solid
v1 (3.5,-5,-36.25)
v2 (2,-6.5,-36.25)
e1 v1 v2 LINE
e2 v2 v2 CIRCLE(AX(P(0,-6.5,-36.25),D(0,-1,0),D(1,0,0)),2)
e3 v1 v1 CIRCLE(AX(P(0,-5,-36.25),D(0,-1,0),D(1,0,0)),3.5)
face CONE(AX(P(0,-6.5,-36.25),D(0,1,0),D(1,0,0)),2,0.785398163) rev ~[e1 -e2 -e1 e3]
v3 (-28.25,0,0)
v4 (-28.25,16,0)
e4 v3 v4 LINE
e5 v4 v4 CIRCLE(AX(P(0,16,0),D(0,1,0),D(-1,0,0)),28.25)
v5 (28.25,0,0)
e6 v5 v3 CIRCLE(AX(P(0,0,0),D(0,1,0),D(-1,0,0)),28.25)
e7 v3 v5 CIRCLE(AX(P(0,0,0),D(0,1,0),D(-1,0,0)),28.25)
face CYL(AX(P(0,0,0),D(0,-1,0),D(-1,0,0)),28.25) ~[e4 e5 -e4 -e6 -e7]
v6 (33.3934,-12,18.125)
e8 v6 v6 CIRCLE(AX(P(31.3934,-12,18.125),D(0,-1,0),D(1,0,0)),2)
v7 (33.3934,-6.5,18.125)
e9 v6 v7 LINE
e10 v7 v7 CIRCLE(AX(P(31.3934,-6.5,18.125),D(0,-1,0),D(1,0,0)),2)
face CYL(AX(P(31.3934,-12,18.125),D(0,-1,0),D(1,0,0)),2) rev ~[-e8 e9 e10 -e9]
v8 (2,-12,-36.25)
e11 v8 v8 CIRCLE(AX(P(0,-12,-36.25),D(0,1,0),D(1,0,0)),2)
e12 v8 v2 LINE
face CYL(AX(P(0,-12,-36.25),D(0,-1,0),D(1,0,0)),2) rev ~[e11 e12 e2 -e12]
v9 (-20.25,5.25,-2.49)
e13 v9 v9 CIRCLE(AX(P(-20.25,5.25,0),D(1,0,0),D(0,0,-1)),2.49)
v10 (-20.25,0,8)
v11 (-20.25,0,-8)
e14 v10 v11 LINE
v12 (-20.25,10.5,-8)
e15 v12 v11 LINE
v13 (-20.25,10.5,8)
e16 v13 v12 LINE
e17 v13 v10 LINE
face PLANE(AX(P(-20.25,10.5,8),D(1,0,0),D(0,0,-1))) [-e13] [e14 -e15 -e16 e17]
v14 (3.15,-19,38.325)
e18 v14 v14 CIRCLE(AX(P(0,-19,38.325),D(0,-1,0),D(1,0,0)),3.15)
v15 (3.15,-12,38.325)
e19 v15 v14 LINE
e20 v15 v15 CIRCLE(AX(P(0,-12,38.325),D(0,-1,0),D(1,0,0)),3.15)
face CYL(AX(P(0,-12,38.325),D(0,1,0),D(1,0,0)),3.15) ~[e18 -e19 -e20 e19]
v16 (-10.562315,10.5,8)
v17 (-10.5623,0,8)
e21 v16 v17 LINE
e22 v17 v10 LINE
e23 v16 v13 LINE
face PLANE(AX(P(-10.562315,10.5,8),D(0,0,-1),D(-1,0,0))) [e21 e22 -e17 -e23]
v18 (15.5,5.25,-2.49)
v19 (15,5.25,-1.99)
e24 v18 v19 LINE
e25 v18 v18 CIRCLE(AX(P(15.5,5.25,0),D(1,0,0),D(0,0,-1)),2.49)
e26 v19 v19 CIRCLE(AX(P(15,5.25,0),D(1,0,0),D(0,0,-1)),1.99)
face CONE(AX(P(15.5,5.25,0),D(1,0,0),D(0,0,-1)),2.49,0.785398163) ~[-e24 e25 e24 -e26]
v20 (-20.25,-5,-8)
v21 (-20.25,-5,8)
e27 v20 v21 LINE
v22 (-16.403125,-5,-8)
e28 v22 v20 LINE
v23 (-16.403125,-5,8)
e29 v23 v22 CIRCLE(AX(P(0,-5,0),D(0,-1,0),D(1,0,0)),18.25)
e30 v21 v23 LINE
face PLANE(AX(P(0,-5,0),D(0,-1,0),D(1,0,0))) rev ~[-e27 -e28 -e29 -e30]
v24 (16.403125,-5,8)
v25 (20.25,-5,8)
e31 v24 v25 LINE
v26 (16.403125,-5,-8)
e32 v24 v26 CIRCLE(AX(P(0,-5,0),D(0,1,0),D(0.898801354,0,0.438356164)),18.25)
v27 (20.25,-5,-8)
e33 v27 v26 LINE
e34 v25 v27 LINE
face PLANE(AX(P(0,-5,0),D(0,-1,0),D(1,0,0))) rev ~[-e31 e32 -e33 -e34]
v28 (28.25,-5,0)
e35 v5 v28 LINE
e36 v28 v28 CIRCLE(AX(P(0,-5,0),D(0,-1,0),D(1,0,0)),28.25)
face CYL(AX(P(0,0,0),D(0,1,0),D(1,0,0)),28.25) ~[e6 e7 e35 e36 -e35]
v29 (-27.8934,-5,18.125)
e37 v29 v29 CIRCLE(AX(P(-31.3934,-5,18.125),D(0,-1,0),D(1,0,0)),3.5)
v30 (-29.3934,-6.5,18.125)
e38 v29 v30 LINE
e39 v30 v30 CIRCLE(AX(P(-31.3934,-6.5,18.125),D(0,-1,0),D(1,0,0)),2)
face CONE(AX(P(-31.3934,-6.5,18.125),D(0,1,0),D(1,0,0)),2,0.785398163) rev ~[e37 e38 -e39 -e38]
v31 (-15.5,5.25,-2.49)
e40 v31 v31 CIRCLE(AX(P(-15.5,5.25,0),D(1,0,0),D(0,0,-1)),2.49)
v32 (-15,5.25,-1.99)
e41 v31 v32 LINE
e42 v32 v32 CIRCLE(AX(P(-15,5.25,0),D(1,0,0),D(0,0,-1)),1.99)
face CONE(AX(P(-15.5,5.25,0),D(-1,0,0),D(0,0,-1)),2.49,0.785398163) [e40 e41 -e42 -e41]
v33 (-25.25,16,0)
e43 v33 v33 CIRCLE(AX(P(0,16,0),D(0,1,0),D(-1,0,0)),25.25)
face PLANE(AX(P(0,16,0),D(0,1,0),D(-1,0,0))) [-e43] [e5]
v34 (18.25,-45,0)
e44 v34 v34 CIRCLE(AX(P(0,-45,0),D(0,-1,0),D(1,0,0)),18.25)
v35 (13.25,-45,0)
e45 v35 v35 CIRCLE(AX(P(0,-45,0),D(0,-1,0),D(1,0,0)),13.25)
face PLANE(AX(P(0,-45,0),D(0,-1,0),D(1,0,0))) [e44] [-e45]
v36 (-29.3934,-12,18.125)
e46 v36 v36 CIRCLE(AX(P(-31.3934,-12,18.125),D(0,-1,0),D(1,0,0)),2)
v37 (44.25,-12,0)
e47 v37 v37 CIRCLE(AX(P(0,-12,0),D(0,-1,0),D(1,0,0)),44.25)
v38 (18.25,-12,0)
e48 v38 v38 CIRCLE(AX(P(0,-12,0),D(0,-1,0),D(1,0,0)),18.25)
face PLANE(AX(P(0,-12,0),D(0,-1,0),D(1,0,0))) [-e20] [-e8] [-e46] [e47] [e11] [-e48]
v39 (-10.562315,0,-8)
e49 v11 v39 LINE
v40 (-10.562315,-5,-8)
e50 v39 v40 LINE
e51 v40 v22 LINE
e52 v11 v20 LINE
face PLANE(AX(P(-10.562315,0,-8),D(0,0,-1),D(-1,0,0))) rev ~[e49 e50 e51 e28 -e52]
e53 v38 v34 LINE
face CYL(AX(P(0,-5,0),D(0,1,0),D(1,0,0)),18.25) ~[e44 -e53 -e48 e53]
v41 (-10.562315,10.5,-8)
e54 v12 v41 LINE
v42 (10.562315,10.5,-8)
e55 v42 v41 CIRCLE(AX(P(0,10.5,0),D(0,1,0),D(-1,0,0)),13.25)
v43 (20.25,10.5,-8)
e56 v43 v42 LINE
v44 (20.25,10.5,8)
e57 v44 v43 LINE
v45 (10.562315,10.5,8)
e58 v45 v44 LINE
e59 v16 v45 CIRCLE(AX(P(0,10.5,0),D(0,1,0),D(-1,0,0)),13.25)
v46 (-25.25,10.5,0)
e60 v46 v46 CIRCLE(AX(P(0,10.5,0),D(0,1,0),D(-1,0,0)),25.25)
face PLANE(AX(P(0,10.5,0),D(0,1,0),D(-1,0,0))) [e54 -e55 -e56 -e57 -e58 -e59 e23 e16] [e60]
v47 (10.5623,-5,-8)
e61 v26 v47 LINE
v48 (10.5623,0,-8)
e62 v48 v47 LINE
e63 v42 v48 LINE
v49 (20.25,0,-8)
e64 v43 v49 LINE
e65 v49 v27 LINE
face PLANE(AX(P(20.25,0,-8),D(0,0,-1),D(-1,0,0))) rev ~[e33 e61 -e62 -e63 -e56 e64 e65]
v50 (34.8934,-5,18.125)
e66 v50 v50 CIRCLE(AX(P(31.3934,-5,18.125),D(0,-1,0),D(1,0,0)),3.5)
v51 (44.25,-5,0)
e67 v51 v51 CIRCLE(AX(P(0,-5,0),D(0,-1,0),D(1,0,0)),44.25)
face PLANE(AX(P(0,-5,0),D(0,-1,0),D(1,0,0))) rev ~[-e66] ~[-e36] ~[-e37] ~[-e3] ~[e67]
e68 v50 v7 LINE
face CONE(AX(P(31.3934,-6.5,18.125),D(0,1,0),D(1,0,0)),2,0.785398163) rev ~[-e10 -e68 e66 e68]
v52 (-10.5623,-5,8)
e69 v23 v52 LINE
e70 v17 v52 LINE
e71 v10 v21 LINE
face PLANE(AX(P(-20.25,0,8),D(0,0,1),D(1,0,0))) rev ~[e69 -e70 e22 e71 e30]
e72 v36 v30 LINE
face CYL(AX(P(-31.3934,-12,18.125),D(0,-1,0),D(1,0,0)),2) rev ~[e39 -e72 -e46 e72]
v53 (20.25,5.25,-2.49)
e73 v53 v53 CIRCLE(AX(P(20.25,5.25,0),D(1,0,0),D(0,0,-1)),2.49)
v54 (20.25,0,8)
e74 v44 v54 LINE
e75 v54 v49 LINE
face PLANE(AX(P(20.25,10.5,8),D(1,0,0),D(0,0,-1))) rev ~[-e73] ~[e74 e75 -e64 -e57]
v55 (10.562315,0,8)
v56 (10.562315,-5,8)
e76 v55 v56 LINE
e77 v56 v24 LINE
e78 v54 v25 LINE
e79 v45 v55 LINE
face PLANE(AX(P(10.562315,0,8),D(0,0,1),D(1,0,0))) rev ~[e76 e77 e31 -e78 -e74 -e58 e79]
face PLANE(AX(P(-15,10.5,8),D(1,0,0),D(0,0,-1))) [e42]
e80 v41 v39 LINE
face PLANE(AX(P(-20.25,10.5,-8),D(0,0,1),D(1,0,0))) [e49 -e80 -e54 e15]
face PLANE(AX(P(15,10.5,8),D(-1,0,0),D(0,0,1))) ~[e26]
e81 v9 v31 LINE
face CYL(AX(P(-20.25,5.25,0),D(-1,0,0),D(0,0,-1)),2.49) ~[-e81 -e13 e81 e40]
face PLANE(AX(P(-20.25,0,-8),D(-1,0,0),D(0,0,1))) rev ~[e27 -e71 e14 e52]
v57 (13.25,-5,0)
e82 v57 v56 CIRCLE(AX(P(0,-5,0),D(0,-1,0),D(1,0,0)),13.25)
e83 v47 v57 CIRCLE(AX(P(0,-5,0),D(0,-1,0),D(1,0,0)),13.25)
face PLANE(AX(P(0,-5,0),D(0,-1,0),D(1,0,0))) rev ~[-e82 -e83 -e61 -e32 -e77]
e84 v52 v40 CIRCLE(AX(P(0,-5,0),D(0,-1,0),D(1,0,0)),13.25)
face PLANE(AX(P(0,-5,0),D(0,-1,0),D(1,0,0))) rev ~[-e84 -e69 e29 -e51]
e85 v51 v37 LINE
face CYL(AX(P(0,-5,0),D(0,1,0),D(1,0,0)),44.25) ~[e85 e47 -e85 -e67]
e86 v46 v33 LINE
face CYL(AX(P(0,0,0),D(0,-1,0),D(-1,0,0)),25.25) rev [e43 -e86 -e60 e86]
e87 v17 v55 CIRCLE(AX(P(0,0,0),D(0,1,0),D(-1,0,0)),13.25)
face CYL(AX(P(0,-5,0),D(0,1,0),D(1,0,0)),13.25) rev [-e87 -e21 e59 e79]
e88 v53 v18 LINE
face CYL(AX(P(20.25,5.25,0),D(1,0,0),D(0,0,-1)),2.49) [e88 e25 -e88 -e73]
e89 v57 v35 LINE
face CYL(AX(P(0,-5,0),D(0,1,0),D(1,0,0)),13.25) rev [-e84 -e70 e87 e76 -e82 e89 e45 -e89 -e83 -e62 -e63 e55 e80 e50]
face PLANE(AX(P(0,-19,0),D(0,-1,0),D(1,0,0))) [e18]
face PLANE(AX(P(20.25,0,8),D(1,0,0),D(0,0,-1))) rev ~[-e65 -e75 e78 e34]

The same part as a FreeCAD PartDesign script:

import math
import FreeCAD as App
import Part
import Sketcher

V = App.Vector
Q = App.Units.Quantity


def edges_at(feature, points):
    """Names of the edges that pass closest to the given points."""
    edges = feature.Shape.Edges
    near = lambda p: min(range(len(edges)), key=lambda i: edges[i].distToShape(Part.Vertex(*p))[0])
    return sorted({f"Edge{near(p) + 1}" for p in points})

doc = App.newDocument("Part")
body = doc.addObject("PartDesign::Body", "Body")

# Sketch on XZ plane
sketch1 = body.newObject("Sketcher::SketchObject", "Sketch")
sketch1.AttachmentSupport = (doc.getObject("XZ_Plane"), [""])
sketch1.MapMode = "FlatFace"
sketch1.addGeometry(Part.Circle(V(0, 0, 0), V(0, 0, 1), 28.25), False)
sketch1.addGeometry(Part.Circle(V(0, 0, 0), V(0, 0, 1), 25.25), False)
sketch1.addConstraint(Sketcher.Constraint("Coincident", 0, 3, -1, 1))
sketch1.addConstraint(Sketcher.Constraint("Coincident", 1, 3, -1, 1))
sketch1.addConstraint(Sketcher.Constraint("Diameter", 0, Q("56.5 mm")))
sketch1.addConstraint(Sketcher.Constraint("Diameter", 1, Q("50.5 mm")))
pad1 = body.newObject("PartDesign::Pad", "Pad")
pad1.Profile = sketch1
pad1.Length = 16
pad1.Reversed = True

# Sketch on XZ plane
sketch2 = body.newObject("Sketcher::SketchObject", "Sketch001")
sketch2.AttachmentSupport = (doc.getObject("XZ_Plane"), [""])
sketch2.MapMode = "FlatFace"
sketch2.addGeometry(Part.Circle(V(0, 0, 0), V(0, 0, 1), 25.25), False)
sketch2.addGeometry(Part.Circle(V(0, 0, 0), V(0, 0, 1), 13.25), False)
sketch2.addConstraint(Sketcher.Constraint("Coincident", 0, 3, -1, 1))
sketch2.addConstraint(Sketcher.Constraint("Coincident", 1, 3, -1, 1))
sketch2.addConstraint(Sketcher.Constraint("Diameter", 1, Q("26.5 mm")))
sketch2.addConstraint(Sketcher.Constraint("Diameter", 0, Q("50.5 mm")))
pad2 = body.newObject("PartDesign::Pad", "Pad001")
pad2.Profile = sketch2
pad2.Length = 10.5
pad2.Reversed = True

# Sketch on XZ plane
sketch3 = body.newObject("Sketcher::SketchObject", "Sketch002")
sketch3.AttachmentSupport = (doc.getObject("XZ_Plane"), [""])
sketch3.MapMode = "FlatFace"
sketch3.AttachmentOffset = App.Placement(V(0, 0, -10.5), App.Rotation())
sketch3.addGeometry(Part.ArcOfCircle(Part.Circle(V(0, 0, 0), V(0, 0, 1), 13.25), math.radians(-37.140642), math.radians(37.140642)), False)
sketch3.addGeometry(Part.LineSegment(V(10.562315, 8, 0), V(20.25, 8, 0)), False)
sketch3.addGeometry(Part.LineSegment(V(20.25, 8, 0), V(20.25, -8, 0)), False)
sketch3.addGeometry(Part.LineSegment(V(20.25, -8, 0), V(10.562315, -8, 0)), False)
sketch3.addGeometry(Part.LineSegment(V(-20.25, 8, 0), V(-10.562315, 8, 0)), False)
sketch3.addGeometry(Part.ArcOfCircle(Part.Circle(V(0, 0, 0), V(0, 0, 1), 13.25), math.radians(142.859358), math.radians(217.140642)), False)
sketch3.addGeometry(Part.LineSegment(V(-10.562315, -8, 0), V(-20.25, -8, 0)), False)
sketch3.addGeometry(Part.LineSegment(V(-20.25, -8, 0), V(-20.25, 8, 0)), False)
sketch3.addConstraint(Sketcher.Constraint("Coincident", 0, 2, 1, 1))
sketch3.addConstraint(Sketcher.Constraint("Coincident", 1, 2, 2, 1))
sketch3.addConstraint(Sketcher.Constraint("Coincident", 2, 2, 3, 1))
sketch3.addConstraint(Sketcher.Constraint("Coincident", 3, 2, 0, 1))
sketch3.addConstraint(Sketcher.Constraint("Coincident", 4, 2, 5, 1))
sketch3.addConstraint(Sketcher.Constraint("Coincident", 5, 2, 6, 1))
sketch3.addConstraint(Sketcher.Constraint("Coincident", 6, 2, 7, 1))
sketch3.addConstraint(Sketcher.Constraint("Coincident", 7, 2, 4, 1))
sketch3.addConstraint(Sketcher.Constraint("Horizontal", 1))
sketch3.addConstraint(Sketcher.Constraint("Vertical", 2))
sketch3.addConstraint(Sketcher.Constraint("Horizontal", 3))
sketch3.addConstraint(Sketcher.Constraint("Horizontal", 4))
sketch3.addConstraint(Sketcher.Constraint("Horizontal", 6))
sketch3.addConstraint(Sketcher.Constraint("Vertical", 7))
sketch3.addConstraint(Sketcher.Constraint("Coincident", 0, 3, -1, 1))
sketch3.addConstraint(Sketcher.Constraint("Coincident", 5, 3, -1, 1))
sketch3.addConstraint(Sketcher.Constraint("Equal", 0, 5))
sketch3.addConstraint(Sketcher.Constraint("Symmetric", 1, 2, 6, 2, -1, 1))
sketch3.addConstraint(Sketcher.Constraint("Horizontal", 1, 2, 4, 2))
sketch3.addConstraint(Sketcher.Constraint("Horizontal", 3, 2, 5, 2))
sketch3.addConstraint(Sketcher.Constraint("DistanceY", 2, 2, 2, 1, Q("16 mm")))
sketch3.addConstraint(Sketcher.Constraint("DistanceX", -1, 1, 1, 2, Q("20.25 mm")))
sketch3.addConstraint(Sketcher.Constraint("Radius", 0, Q("13.25 mm")))
pocket1 = body.newObject("PartDesign::Pocket", "Pocket")
pocket1.Profile = sketch3
pocket1.Length = 10.5
pocket1.Reversed = True

# Sketch on YZ plane
sketch4 = body.newObject("Sketcher::SketchObject", "Sketch003")
sketch4.AttachmentSupport = (doc.getObject("YZ_Plane"), [""])
sketch4.MapMode = "FlatFace"
sketch4.AttachmentOffset = App.Placement(V(0, 0, -20.25), App.Rotation())
sketch4.addGeometry(Part.Circle(V(5.25, 0, 0), V(0, 0, 1), 2.49), False)
sketch4.addConstraint(Sketcher.Constraint("PointOnObject", 0, 3, -1))
sketch4.addConstraint(Sketcher.Constraint("Diameter", 0, Q("4.98 mm")))
sketch4.addConstraint(Sketcher.Constraint("DistanceX", -1, 1, 0, 3, Q("5.25 mm")))
pad3 = body.newObject("PartDesign::Pad", "Pad002")
pad3.Profile = sketch4
pad3.Length = 5.25
doc.recompute()

chamfer = body.newObject("PartDesign::Chamfer", "Chamfer")
chamfer.Base = (pad3, edges_at(pad3, [(-15, 5.25, 2.49)]))
chamfer.Size = 0.5
doc.recompute()

mirrored = body.newObject("PartDesign::Mirrored", "Mirrored")
mirrored.Originals = [pad3, chamfer]
mirrored.MirrorPlane = (doc.getObject("YZ_Plane"), [""])
body.Tip = mirrored

# Sketch on XZ plane
sketch5 = body.newObject("Sketcher::SketchObject", "Sketch004")
sketch5.AttachmentSupport = (doc.getObject("XZ_Plane"), [""])
sketch5.MapMode = "FlatFace"
sketch5.addGeometry(Part.Circle(V(0, 0, 0), V(0, 0, 1), 28.25), False)
sketch5.addGeometry(Part.LineSegment(V(20.25, 8, 0), V(20.25, -8, 0)), False)
sketch5.addGeometry(Part.LineSegment(V(20.25, -8, 0), V(10.5623, -8, 0)), False)
sketch5.addGeometry(Part.ArcOfCircle(Part.Circle(V(0, 0, 0), V(0, 0, 1), 13.25), math.radians(-142.859358), math.radians(-37.140681)), False)
sketch5.addGeometry(Part.LineSegment(V(-10.562315, -8, 0), V(-20.25, -8, 0)), False)
sketch5.addGeometry(Part.LineSegment(V(-20.25, -8, 0), V(-20.25, 8, 0)), False)
sketch5.addGeometry(Part.LineSegment(V(-20.25, 8, 0), V(-10.5623, 8, 0)), False)
sketch5.addGeometry(Part.ArcOfCircle(Part.Circle(V(0, 0, 0), V(0, 0, 1), 13.25), math.radians(37.140642), math.radians(142.859319)), False)
sketch5.addGeometry(Part.LineSegment(V(10.562315, 8, 0), V(20.25, 8, 0)), False)
sketch5.addConstraint(Sketcher.Constraint("Coincident", 1, 2, 2, 1))
sketch5.addConstraint(Sketcher.Constraint("Coincident", 2, 2, 3, 2))
sketch5.addConstraint(Sketcher.Constraint("Coincident", 3, 1, 4, 1))
sketch5.addConstraint(Sketcher.Constraint("Coincident", 4, 2, 5, 1))
sketch5.addConstraint(Sketcher.Constraint("Coincident", 5, 2, 6, 1))
sketch5.addConstraint(Sketcher.Constraint("Coincident", 6, 2, 7, 2))
sketch5.addConstraint(Sketcher.Constraint("Coincident", 7, 1, 8, 1))
sketch5.addConstraint(Sketcher.Constraint("Coincident", 8, 2, 1, 1))
sketch5.addConstraint(Sketcher.Constraint("Vertical", 1))
sketch5.addConstraint(Sketcher.Constraint("Horizontal", 2))
sketch5.addConstraint(Sketcher.Constraint("Horizontal", 4))
sketch5.addConstraint(Sketcher.Constraint("Vertical", 5))
sketch5.addConstraint(Sketcher.Constraint("Horizontal", 6))
sketch5.addConstraint(Sketcher.Constraint("Horizontal", 8))
sketch5.addConstraint(Sketcher.Constraint("Coincident", 0, 3, -1, 1))
sketch5.addConstraint(Sketcher.Constraint("Coincident", 3, 3, -1, 1))
sketch5.addConstraint(Sketcher.Constraint("Coincident", 7, 3, -1, 1))
sketch5.addConstraint(Sketcher.Constraint("Equal", 3, 7))
sketch5.addConstraint(Sketcher.Constraint("Symmetric", 1, 2, 5, 2, -1, 1))
sketch5.addConstraint(Sketcher.Constraint("Horizontal", 2, 2, 3, 1))
sketch5.addConstraint(Sketcher.Constraint("Horizontal", 6, 2, 7, 1))
sketch5.addConstraint(Sketcher.Constraint("Diameter", 0, Q("56.5 mm")))
sketch5.addConstraint(Sketcher.Constraint("DistanceY", 1, 2, 1, 1, Q("16 mm")))
sketch5.addConstraint(Sketcher.Constraint("Radius", 3, Q("13.25 mm")))
sketch5.addConstraint(Sketcher.Constraint("DistanceX", -1, 1, 1, 2, Q("20.25 mm")))
pad4 = body.newObject("PartDesign::Pad", "Pad003")
pad4.Profile = sketch5
pad4.Length = 5

# Sketch on XZ plane
sketch6 = body.newObject("Sketcher::SketchObject", "Sketch005")
sketch6.AttachmentSupport = (doc.getObject("XZ_Plane"), [""])
sketch6.MapMode = "FlatFace"
sketch6.AttachmentOffset = App.Placement(V(0, 0, 5), App.Rotation())
sketch6.addGeometry(Part.Circle(V(0, 0, 0), V(0, 0, 1), 18.25), False)
sketch6.addGeometry(Part.Circle(V(0, 0, 0), V(0, 0, 1), 13.25), False)
sketch6.addConstraint(Sketcher.Constraint("Coincident", 0, 3, -1, 1))
sketch6.addConstraint(Sketcher.Constraint("Coincident", 1, 3, -1, 1))
sketch6.addConstraint(Sketcher.Constraint("Diameter", 0, Q("36.5 mm")))
sketch6.addConstraint(Sketcher.Constraint("Diameter", 1, Q("26.5 mm")))
pad5 = body.newObject("PartDesign::Pad", "Pad004")
pad5.Profile = sketch6
pad5.Length = 40

# Sketch on XZ plane
sketch7 = body.newObject("Sketcher::SketchObject", "Sketch006")
sketch7.AttachmentSupport = (doc.getObject("XZ_Plane"), [""])
sketch7.MapMode = "FlatFace"
sketch7.AttachmentOffset = App.Placement(V(0, 0, 5), App.Rotation())
sketch7.addGeometry(Part.Circle(V(0, 0, 0), V(0, 0, 1), 44.25), False)
sketch7.addGeometry(Part.Circle(V(0, 0, 0), V(0, 0, 1), 18.25), False)
sketch7.addConstraint(Sketcher.Constraint("Coincident", 0, 3, -1, 1))
sketch7.addConstraint(Sketcher.Constraint("Coincident", 1, 3, -1, 1))
sketch7.addConstraint(Sketcher.Constraint("Diameter", 0, Q("88.5 mm")))
sketch7.addConstraint(Sketcher.Constraint("Diameter", 1, Q("36.5 mm")))
pad6 = body.newObject("PartDesign::Pad", "Pad005")
pad6.Profile = sketch7
pad6.Length = 7

# Sketch on XZ plane
sketch8 = body.newObject("Sketcher::SketchObject", "Sketch007")
sketch8.AttachmentSupport = (doc.getObject("XZ_Plane"), [""])
sketch8.MapMode = "FlatFace"
sketch8.AttachmentOffset = App.Placement(V(0, 0, 12), App.Rotation())
sketch8.addGeometry(Part.Circle(V(0, 38.325, 0), V(0, 0, 1), 3.15), False)
sketch8.addConstraint(Sketcher.Constraint("PointOnObject", 0, 3, -2))
sketch8.addConstraint(Sketcher.Constraint("Diameter", 0, Q("6.3 mm")))
sketch8.addConstraint(Sketcher.Constraint("DistanceY", -1, 1, 0, 3, Q("38.325 mm")))
pad7 = body.newObject("PartDesign::Pad", "Pad006")
pad7.Profile = sketch8
pad7.Length = 7

# Sketch on XZ plane
sketch9 = body.newObject("Sketcher::SketchObject", "Sketch008")
sketch9.AttachmentSupport = (doc.getObject("XZ_Plane"), [""])
sketch9.MapMode = "FlatFace"
sketch9.AttachmentOffset = App.Placement(V(0, 0, 12), App.Rotation())
sketch9.addGeometry(Part.Circle(V(0, -36.25, 0), V(0, 0, 1), 2), False)
sketch9.addGeometry(Part.Circle(V(31.3934, 18.125, 0), V(0, 0, 1), 2), False)
sketch9.addGeometry(Part.Circle(V(-31.3934, 18.125, 0), V(0, 0, 1), 2), False)
sketch9.addConstraint(Sketcher.Constraint("Equal", 0, 1))
sketch9.addConstraint(Sketcher.Constraint("Equal", 1, 2))
sketch9.addConstraint(Sketcher.Constraint("Symmetric", 1, 3, 2, 3, -2))
sketch9.addConstraint(Sketcher.Constraint("PointOnObject", 0, 3, -2))
sketch9.addConstraint(Sketcher.Constraint("Diameter", 0, Q("4 mm")))
sketch9.addConstraint(Sketcher.Constraint("DistanceY", 0, 3, -1, 1, Q("36.25 mm")))
sketch9.addConstraint(Sketcher.Constraint("DistanceY", -1, 1, 1, 3, Q("18.125 mm")))
sketch9.addConstraint(Sketcher.Constraint("DistanceX", -1, 1, 1, 3, Q("31.3934 mm")))
pocket2 = body.newObject("PartDesign::Pocket", "Pocket001")
pocket2.Profile = sketch9
pocket2.Length = 7
doc.recompute()

chamfer2 = body.newObject("PartDesign::Chamfer", "Chamfer001")
chamfer2.Base = (pocket2, edges_at(pocket2, [(29.393, -5, 18.125), (-33.393, -5, 18.125), (-2, -5, -36.25)]))
chamfer2.Size = 1.5

doc.recompute()
